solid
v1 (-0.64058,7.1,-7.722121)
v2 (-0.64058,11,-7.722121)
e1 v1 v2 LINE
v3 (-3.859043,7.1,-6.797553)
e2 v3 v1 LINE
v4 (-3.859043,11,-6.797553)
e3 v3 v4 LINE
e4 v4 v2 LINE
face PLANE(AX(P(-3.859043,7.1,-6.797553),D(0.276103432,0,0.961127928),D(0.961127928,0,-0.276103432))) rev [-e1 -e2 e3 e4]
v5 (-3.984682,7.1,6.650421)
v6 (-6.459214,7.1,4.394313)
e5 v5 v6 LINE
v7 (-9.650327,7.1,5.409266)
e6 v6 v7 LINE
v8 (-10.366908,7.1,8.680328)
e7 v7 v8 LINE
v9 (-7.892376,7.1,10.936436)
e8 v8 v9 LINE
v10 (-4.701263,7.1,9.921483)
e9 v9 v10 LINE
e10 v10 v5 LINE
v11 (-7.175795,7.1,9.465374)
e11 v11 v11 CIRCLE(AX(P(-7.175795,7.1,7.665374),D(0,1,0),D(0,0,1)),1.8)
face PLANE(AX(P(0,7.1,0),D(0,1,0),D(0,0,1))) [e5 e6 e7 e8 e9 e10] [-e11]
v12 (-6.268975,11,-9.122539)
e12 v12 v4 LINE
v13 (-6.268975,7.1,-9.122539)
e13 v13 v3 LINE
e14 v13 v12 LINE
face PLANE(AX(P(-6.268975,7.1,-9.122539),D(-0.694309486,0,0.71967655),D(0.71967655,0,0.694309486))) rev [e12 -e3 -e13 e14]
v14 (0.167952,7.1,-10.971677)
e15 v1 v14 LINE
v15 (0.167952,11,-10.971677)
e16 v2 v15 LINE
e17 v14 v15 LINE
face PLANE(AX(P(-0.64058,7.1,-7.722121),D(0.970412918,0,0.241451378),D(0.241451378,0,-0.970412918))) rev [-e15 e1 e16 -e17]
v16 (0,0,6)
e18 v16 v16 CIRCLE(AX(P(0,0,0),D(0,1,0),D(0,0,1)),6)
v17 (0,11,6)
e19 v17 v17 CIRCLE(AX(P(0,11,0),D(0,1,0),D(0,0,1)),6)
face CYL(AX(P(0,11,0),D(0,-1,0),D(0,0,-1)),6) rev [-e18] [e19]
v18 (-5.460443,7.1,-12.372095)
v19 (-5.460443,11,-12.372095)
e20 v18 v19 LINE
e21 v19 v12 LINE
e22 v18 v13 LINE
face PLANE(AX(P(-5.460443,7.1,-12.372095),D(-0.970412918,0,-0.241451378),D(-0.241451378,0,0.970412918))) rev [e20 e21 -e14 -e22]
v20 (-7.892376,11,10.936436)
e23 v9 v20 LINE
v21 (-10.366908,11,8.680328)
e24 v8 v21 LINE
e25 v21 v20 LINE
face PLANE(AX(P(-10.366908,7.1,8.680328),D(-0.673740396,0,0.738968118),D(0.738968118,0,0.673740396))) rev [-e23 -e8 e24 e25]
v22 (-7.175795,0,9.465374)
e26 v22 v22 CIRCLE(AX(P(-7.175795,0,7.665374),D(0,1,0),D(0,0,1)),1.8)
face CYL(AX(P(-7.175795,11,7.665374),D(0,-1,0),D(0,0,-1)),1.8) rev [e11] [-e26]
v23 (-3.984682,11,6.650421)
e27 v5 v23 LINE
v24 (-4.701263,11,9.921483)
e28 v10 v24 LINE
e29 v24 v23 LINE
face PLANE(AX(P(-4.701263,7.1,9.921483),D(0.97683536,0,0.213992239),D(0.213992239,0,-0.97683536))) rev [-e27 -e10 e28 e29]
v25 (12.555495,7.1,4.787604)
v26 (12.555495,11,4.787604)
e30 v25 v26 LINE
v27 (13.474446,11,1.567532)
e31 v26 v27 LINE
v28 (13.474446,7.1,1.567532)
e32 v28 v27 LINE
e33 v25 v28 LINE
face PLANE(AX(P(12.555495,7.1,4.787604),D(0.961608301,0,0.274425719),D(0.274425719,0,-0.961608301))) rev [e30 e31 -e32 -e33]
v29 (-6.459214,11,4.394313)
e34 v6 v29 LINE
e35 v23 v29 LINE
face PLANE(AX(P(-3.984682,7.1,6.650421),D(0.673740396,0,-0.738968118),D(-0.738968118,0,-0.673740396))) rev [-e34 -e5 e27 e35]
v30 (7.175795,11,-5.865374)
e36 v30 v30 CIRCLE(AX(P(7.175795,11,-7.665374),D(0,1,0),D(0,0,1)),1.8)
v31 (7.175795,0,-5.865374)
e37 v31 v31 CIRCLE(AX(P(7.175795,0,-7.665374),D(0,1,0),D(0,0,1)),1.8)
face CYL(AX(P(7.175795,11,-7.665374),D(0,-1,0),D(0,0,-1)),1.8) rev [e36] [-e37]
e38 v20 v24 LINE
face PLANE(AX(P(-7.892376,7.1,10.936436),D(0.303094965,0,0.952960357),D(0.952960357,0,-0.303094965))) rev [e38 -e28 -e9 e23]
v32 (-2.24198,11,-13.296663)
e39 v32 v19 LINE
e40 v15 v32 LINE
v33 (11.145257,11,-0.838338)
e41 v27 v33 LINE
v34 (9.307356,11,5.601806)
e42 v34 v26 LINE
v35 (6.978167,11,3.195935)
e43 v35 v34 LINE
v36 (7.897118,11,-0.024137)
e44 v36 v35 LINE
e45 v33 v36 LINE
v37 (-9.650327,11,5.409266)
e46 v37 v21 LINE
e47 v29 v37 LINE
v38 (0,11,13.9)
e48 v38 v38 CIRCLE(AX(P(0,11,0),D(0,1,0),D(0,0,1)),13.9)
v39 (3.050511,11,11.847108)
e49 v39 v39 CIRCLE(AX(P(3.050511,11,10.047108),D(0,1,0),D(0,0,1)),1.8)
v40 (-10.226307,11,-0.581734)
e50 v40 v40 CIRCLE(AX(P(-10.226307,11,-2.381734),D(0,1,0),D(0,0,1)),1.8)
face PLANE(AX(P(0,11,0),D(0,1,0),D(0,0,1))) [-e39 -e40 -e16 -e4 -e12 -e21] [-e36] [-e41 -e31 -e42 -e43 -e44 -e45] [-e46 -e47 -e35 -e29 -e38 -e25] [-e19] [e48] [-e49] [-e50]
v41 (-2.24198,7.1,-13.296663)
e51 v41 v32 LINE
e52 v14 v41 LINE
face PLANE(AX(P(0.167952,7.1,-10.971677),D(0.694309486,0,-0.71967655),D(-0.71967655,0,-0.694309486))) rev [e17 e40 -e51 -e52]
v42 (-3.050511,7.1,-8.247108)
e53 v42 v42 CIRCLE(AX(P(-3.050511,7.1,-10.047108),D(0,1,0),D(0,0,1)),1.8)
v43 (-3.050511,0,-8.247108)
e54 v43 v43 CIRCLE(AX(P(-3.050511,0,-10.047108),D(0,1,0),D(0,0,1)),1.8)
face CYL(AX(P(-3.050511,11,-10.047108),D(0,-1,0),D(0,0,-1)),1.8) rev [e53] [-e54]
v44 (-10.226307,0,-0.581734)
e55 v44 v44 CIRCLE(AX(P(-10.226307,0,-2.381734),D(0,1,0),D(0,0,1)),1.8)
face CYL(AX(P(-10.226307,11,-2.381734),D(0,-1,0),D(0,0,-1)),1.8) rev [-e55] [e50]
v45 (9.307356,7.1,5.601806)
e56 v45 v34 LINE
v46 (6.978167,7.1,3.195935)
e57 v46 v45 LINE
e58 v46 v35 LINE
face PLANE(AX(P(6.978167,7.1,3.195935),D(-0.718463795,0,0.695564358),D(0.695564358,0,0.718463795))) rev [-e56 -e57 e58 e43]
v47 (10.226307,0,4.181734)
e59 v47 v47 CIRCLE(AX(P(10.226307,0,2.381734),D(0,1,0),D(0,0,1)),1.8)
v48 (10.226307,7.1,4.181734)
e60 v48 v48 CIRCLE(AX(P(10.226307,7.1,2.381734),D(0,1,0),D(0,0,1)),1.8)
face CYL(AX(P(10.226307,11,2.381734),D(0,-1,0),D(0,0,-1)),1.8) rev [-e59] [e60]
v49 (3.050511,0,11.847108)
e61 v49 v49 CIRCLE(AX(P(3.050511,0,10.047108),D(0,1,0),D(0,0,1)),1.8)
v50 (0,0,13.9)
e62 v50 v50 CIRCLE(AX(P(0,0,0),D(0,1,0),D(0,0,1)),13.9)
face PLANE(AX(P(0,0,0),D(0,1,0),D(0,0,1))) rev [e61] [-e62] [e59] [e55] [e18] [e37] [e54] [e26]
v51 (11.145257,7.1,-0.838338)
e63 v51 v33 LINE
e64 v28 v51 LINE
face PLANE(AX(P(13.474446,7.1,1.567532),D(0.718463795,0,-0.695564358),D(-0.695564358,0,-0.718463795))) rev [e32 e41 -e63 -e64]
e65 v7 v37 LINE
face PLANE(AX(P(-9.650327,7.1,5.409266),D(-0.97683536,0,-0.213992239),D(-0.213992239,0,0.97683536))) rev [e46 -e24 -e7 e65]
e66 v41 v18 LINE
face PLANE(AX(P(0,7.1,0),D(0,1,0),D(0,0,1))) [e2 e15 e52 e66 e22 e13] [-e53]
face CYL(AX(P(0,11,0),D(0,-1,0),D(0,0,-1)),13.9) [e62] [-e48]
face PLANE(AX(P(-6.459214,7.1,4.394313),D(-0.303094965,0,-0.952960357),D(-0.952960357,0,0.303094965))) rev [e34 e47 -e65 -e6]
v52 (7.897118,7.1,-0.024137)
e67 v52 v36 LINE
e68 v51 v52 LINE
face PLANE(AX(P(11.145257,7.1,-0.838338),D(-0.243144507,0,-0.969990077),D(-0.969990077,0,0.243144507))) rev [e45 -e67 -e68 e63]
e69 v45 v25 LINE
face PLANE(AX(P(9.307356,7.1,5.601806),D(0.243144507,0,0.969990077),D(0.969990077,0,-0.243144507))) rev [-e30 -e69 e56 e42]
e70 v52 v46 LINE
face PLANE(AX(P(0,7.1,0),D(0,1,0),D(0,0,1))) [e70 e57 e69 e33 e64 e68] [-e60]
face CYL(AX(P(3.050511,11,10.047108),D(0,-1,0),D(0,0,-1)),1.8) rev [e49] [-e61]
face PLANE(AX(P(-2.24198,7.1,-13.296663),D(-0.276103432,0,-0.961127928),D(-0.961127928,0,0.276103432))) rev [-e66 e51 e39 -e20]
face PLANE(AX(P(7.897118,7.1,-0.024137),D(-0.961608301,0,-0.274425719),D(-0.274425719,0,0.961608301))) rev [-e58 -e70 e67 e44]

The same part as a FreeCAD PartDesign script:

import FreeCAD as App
import Part
import Sketcher

V = App.Vector

doc = App.newDocument("Part")
body = doc.addObject("PartDesign::Body", "Body")

# Sketch on XZ plane
sketch1 = body.newObject("Sketcher::SketchObject", "Sketch")
sketch1.AttachmentSupport = (doc.getObject("XZ_Plane"), [""])
sketch1.MapMode = "FlatFace"
sketch1.addGeometry([
    Part.Circle(V(0, 0, 0), V(0, 0, 1), 13.9),  # 0
    Part.Circle(V(-10.226306, -2.381734, 0), V(0, 0, 1), 1.8),  # 1
    Part.Circle(V(-3.050511, -10.047108, 0), V(0, 0, 1), 1.8),  # 2
    Part.Circle(V(-7.175795, 7.665374, 0), V(0, 0, 1), 1.8),  # 3
    Part.Circle(V(7.175795, -7.665374, 0), V(0, 0, 1), 1.8),  # 4
    Part.Circle(V(0, 0, 0), V(0, 0, 1), 6),  # 5
    Part.Circle(V(3.050511, 10.047108, 0), V(0, 0, 1), 1.8),  # 6
    Part.Circle(V(10.226306, 2.381734, 0), V(0, 0, 1), 1.8),  # 7
], False)
sketch1.addConstraint([
    Sketcher.Constraint("Coincident", 0, 3, -1, 1),
    Sketcher.Constraint("Coincident", 5, 3, -1, 1),
    Sketcher.Constraint("Equal", 1, 2),
    Sketcher.Constraint("Equal", 2, 3),
    Sketcher.Constraint("Equal", 3, 4),
    Sketcher.Constraint("Equal", 4, 6),
    Sketcher.Constraint("Equal", 6, 7),
    Sketcher.Constraint("Symmetric", 3, 3, 4, 3, -1, 1),
    Sketcher.Constraint("Symmetric", 2, 3, 6, 3, -1, 1),
    Sketcher.Constraint("Symmetric", 1, 3, 7, 3, -1, 1),
    Sketcher.Constraint("Diameter", 5, 12.0),
    Sketcher.Constraint("Diameter", 0, 27.8),
    Sketcher.Constraint("Diameter", 1, 3.6),
    Sketcher.Constraint("DistanceX", 1, 3, 4, 3, 17.402102),
    Sketcher.Constraint("DistanceX", 2, 3, -1, 1, 3.050511),
    Sketcher.Constraint("DistanceY", 2, 3, -1, 1, 10.047108),
    Sketcher.Constraint("DistanceX", 1, 3, 3, 3, 3.050511),
    Sketcher.Constraint("DistanceY", 1, 3, 3, 3, 10.047108),
    Sketcher.Constraint("DistanceY", 4, 3, 1, 3, 5.283641),
])
pad1 = body.newObject("PartDesign::Pad", "Pad")
pad1.Profile = sketch1
pad1.Length = 11
pad1.Reversed = True

# Sketch on XZ plane
sketch2 = body.newObject("Sketcher::SketchObject", "Sketch001")
sketch2.AttachmentSupport = (doc.getObject("XZ_Plane"), [""])
sketch2.MapMode = "FlatFace"
sketch2.AttachmentOffset = App.Placement(V(0, 0, -11), App.Rotation())
sketch2.addGeometry([
    Part.LineSegment(V(-3.859043, -6.797553, 0), V(-0.64058, -7.722121, 0)),  # 0
    Part.LineSegment(V(-0.64058, -7.722121, 0), V(0.167952, -10.971677, 0)),  # 1
    Part.LineSegment(V(0.167952, -10.971677, 0), V(-2.24198, -13.296663, 0)),  # 2
    Part.LineSegment(V(-2.24198, -13.296663, 0), V(-5.460443, -12.372095, 0)),  # 3
    Part.LineSegment(V(-5.460443, -12.372095, 0), V(-6.268975, -9.122539, 0)),  # 4
    Part.LineSegment(V(-6.268975, -9.122539, 0), V(-3.859043, -6.797553, 0)),  # 5
    Part.LineSegment(V(12.555495, 4.787604, 0), V(13.474446, 1.567532, 0)),  # 6
    Part.LineSegment(V(13.474446, 1.567532, 0), V(11.145257, -0.838338, 0)),  # 7
    Part.LineSegment(V(11.145257, -0.838338, 0), V(7.897118, -0.024137, 0)),  # 8
    Part.LineSegment(V(7.897118, -0.024137, 0), V(6.978167, 3.195935, 0)),  # 9
    Part.LineSegment(V(6.978167, 3.195935, 0), V(9.307356, 5.601806, 0)),  # 10
    Part.LineSegment(V(9.307356, 5.601806, 0), V(12.555495, 4.787604, 0)),  # 11
    Part.LineSegment(V(-4.701263, 9.921483, 0), V(-3.984682, 6.650421, 0)),  # 12
    Part.LineSegment(V(-3.984682, 6.650421, 0), V(-6.459214, 4.394313, 0)),  # 13
    Part.LineSegment(V(-6.459214, 4.394313, 0), V(-9.650327, 5.409266, 0)),  # 14
    Part.LineSegment(V(-9.650327, 5.409266, 0), V(-10.366908, 8.680328, 0)),  # 15
    Part.LineSegment(V(-10.366908, 8.680328, 0), V(-7.892376, 10.936436, 0)),  # 16
    Part.LineSegment(V(-7.892376, 10.936436, 0), V(-4.701263, 9.921483, 0)),  # 17
], False)
sketch2.addConstraint([
    Sketcher.Constraint("Coincident", 0, 2, 1, 1),
    Sketcher.Constraint("Coincident", 1, 2, 2, 1),
    Sketcher.Constraint("Coincident", 2, 2, 3, 1),
    Sketcher.Constraint("Coincident", 3, 2, 4, 1),
    Sketcher.Constraint("Coincident", 4, 2, 5, 1),
    Sketcher.Constraint("Coincident", 5, 2, 0, 1),
    Sketcher.Constraint("Coincident", 6, 2, 7, 1),
    Sketcher.Constraint("Coincident", 7, 2, 8, 1),
    Sketcher.Constraint("Coincident", 8, 2, 9, 1),
    Sketcher.Constraint("Coincident", 9, 2, 10, 1),
    Sketcher.Constraint("Coincident", 10, 2, 11, 1),
    Sketcher.Constraint("Coincident", 11, 2, 6, 1),
    Sketcher.Constraint("Coincident", 12, 2, 13, 1),
    Sketcher.Constraint("Coincident", 13, 2, 14, 1),
    Sketcher.Constraint("Coincident", 14, 2, 15, 1),
    Sketcher.Constraint("Coincident", 15, 2, 16, 1),
    Sketcher.Constraint("Coincident", 16, 2, 17, 1),
    Sketcher.Constraint("Coincident", 17, 2, 12, 1),
    Sketcher.Constraint("Parallel", 0, 3),
    Sketcher.Constraint("Parallel", 1, 4),
    Sketcher.Constraint("Parallel", 2, 5),
    Sketcher.Constraint("Parallel", 6, 9),
    Sketcher.Constraint("Parallel", 7, 10),
    Sketcher.Constraint("Parallel", 8, 11),
    Sketcher.Constraint("Parallel", 12, 15),
    Sketcher.Constraint("Parallel", 13, 16),
    Sketcher.Constraint("Parallel", 14, 17),
    Sketcher.Constraint("Equal", 0, 1),
    Sketcher.Constraint("Equal", 1, 2),
    Sketcher.Constraint("Equal", 2, 3),
    Sketcher.Constraint("Equal", 5, 6),
    Sketcher.Constraint("Equal", 6, 7),
    Sketcher.Constraint("Equal", 7, 8),
    Sketcher.Constraint("Equal", 8, 9),
    Sketcher.Constraint("Equal", 11, 12),
    Sketcher.Constraint("Equal", 12, 13),
    Sketcher.Constraint("Equal", 13, 14),
    Sketcher.Constraint("Equal", 14, 15),
    Sketcher.Constraint("DistanceX", 2, 2, 0, 2, 1.6014),
    Sketcher.Constraint("DistanceX", 5, 2, 7, 2, 15.0043),
    Sketcher.Constraint("DistanceY", 7, 2, 8, 2, 0.814201),
    Sketcher.Constraint("DistanceX", 10, 2, 7, 2, 1.837901),
    Sketcher.Constraint("DistanceX", 12, 2, 8, 2, 11.8818),
    Sketcher.Constraint("DistanceY", 9, 2, 16, 2, 7.740501),
    Sketcher.Constraint("Distance", 0, 3.348632),
    Sketcher.Constraint("DistanceX", 0, 2, -1, 1, 0.64058),
    Sketcher.Constraint("DistanceY", 0, 2, -1, 1, 7.722121),
    Sketcher.Constraint("DistanceX", -1, 1, 1, 2, 0.167952),
    Sketcher.Constraint("DistanceY", 4, 2, -1, 1, 9.122539),
    Sketcher.Constraint("DistanceY", 7, 2, -1, 1, 0.838338),
    Sketcher.Constraint("DistanceY", -1, 1, 12, 2, 6.650421),
    Sketcher.Constraint("DistanceX", 15, 2, -1, 1, 10.366908),
    Sketcher.Constraint("DistanceY", 1, 2, 6, 2, 12.539209),
    Sketcher.Constraint("DistanceX", 13, 2, 12, 2, 2.474532),
])
pocket1 = body.newObject("PartDesign::Pocket", "Pocket")
pocket1.Profile = sketch2
pocket1.Length = 3.9
pocket1.Reversed = True

doc.recompute()
